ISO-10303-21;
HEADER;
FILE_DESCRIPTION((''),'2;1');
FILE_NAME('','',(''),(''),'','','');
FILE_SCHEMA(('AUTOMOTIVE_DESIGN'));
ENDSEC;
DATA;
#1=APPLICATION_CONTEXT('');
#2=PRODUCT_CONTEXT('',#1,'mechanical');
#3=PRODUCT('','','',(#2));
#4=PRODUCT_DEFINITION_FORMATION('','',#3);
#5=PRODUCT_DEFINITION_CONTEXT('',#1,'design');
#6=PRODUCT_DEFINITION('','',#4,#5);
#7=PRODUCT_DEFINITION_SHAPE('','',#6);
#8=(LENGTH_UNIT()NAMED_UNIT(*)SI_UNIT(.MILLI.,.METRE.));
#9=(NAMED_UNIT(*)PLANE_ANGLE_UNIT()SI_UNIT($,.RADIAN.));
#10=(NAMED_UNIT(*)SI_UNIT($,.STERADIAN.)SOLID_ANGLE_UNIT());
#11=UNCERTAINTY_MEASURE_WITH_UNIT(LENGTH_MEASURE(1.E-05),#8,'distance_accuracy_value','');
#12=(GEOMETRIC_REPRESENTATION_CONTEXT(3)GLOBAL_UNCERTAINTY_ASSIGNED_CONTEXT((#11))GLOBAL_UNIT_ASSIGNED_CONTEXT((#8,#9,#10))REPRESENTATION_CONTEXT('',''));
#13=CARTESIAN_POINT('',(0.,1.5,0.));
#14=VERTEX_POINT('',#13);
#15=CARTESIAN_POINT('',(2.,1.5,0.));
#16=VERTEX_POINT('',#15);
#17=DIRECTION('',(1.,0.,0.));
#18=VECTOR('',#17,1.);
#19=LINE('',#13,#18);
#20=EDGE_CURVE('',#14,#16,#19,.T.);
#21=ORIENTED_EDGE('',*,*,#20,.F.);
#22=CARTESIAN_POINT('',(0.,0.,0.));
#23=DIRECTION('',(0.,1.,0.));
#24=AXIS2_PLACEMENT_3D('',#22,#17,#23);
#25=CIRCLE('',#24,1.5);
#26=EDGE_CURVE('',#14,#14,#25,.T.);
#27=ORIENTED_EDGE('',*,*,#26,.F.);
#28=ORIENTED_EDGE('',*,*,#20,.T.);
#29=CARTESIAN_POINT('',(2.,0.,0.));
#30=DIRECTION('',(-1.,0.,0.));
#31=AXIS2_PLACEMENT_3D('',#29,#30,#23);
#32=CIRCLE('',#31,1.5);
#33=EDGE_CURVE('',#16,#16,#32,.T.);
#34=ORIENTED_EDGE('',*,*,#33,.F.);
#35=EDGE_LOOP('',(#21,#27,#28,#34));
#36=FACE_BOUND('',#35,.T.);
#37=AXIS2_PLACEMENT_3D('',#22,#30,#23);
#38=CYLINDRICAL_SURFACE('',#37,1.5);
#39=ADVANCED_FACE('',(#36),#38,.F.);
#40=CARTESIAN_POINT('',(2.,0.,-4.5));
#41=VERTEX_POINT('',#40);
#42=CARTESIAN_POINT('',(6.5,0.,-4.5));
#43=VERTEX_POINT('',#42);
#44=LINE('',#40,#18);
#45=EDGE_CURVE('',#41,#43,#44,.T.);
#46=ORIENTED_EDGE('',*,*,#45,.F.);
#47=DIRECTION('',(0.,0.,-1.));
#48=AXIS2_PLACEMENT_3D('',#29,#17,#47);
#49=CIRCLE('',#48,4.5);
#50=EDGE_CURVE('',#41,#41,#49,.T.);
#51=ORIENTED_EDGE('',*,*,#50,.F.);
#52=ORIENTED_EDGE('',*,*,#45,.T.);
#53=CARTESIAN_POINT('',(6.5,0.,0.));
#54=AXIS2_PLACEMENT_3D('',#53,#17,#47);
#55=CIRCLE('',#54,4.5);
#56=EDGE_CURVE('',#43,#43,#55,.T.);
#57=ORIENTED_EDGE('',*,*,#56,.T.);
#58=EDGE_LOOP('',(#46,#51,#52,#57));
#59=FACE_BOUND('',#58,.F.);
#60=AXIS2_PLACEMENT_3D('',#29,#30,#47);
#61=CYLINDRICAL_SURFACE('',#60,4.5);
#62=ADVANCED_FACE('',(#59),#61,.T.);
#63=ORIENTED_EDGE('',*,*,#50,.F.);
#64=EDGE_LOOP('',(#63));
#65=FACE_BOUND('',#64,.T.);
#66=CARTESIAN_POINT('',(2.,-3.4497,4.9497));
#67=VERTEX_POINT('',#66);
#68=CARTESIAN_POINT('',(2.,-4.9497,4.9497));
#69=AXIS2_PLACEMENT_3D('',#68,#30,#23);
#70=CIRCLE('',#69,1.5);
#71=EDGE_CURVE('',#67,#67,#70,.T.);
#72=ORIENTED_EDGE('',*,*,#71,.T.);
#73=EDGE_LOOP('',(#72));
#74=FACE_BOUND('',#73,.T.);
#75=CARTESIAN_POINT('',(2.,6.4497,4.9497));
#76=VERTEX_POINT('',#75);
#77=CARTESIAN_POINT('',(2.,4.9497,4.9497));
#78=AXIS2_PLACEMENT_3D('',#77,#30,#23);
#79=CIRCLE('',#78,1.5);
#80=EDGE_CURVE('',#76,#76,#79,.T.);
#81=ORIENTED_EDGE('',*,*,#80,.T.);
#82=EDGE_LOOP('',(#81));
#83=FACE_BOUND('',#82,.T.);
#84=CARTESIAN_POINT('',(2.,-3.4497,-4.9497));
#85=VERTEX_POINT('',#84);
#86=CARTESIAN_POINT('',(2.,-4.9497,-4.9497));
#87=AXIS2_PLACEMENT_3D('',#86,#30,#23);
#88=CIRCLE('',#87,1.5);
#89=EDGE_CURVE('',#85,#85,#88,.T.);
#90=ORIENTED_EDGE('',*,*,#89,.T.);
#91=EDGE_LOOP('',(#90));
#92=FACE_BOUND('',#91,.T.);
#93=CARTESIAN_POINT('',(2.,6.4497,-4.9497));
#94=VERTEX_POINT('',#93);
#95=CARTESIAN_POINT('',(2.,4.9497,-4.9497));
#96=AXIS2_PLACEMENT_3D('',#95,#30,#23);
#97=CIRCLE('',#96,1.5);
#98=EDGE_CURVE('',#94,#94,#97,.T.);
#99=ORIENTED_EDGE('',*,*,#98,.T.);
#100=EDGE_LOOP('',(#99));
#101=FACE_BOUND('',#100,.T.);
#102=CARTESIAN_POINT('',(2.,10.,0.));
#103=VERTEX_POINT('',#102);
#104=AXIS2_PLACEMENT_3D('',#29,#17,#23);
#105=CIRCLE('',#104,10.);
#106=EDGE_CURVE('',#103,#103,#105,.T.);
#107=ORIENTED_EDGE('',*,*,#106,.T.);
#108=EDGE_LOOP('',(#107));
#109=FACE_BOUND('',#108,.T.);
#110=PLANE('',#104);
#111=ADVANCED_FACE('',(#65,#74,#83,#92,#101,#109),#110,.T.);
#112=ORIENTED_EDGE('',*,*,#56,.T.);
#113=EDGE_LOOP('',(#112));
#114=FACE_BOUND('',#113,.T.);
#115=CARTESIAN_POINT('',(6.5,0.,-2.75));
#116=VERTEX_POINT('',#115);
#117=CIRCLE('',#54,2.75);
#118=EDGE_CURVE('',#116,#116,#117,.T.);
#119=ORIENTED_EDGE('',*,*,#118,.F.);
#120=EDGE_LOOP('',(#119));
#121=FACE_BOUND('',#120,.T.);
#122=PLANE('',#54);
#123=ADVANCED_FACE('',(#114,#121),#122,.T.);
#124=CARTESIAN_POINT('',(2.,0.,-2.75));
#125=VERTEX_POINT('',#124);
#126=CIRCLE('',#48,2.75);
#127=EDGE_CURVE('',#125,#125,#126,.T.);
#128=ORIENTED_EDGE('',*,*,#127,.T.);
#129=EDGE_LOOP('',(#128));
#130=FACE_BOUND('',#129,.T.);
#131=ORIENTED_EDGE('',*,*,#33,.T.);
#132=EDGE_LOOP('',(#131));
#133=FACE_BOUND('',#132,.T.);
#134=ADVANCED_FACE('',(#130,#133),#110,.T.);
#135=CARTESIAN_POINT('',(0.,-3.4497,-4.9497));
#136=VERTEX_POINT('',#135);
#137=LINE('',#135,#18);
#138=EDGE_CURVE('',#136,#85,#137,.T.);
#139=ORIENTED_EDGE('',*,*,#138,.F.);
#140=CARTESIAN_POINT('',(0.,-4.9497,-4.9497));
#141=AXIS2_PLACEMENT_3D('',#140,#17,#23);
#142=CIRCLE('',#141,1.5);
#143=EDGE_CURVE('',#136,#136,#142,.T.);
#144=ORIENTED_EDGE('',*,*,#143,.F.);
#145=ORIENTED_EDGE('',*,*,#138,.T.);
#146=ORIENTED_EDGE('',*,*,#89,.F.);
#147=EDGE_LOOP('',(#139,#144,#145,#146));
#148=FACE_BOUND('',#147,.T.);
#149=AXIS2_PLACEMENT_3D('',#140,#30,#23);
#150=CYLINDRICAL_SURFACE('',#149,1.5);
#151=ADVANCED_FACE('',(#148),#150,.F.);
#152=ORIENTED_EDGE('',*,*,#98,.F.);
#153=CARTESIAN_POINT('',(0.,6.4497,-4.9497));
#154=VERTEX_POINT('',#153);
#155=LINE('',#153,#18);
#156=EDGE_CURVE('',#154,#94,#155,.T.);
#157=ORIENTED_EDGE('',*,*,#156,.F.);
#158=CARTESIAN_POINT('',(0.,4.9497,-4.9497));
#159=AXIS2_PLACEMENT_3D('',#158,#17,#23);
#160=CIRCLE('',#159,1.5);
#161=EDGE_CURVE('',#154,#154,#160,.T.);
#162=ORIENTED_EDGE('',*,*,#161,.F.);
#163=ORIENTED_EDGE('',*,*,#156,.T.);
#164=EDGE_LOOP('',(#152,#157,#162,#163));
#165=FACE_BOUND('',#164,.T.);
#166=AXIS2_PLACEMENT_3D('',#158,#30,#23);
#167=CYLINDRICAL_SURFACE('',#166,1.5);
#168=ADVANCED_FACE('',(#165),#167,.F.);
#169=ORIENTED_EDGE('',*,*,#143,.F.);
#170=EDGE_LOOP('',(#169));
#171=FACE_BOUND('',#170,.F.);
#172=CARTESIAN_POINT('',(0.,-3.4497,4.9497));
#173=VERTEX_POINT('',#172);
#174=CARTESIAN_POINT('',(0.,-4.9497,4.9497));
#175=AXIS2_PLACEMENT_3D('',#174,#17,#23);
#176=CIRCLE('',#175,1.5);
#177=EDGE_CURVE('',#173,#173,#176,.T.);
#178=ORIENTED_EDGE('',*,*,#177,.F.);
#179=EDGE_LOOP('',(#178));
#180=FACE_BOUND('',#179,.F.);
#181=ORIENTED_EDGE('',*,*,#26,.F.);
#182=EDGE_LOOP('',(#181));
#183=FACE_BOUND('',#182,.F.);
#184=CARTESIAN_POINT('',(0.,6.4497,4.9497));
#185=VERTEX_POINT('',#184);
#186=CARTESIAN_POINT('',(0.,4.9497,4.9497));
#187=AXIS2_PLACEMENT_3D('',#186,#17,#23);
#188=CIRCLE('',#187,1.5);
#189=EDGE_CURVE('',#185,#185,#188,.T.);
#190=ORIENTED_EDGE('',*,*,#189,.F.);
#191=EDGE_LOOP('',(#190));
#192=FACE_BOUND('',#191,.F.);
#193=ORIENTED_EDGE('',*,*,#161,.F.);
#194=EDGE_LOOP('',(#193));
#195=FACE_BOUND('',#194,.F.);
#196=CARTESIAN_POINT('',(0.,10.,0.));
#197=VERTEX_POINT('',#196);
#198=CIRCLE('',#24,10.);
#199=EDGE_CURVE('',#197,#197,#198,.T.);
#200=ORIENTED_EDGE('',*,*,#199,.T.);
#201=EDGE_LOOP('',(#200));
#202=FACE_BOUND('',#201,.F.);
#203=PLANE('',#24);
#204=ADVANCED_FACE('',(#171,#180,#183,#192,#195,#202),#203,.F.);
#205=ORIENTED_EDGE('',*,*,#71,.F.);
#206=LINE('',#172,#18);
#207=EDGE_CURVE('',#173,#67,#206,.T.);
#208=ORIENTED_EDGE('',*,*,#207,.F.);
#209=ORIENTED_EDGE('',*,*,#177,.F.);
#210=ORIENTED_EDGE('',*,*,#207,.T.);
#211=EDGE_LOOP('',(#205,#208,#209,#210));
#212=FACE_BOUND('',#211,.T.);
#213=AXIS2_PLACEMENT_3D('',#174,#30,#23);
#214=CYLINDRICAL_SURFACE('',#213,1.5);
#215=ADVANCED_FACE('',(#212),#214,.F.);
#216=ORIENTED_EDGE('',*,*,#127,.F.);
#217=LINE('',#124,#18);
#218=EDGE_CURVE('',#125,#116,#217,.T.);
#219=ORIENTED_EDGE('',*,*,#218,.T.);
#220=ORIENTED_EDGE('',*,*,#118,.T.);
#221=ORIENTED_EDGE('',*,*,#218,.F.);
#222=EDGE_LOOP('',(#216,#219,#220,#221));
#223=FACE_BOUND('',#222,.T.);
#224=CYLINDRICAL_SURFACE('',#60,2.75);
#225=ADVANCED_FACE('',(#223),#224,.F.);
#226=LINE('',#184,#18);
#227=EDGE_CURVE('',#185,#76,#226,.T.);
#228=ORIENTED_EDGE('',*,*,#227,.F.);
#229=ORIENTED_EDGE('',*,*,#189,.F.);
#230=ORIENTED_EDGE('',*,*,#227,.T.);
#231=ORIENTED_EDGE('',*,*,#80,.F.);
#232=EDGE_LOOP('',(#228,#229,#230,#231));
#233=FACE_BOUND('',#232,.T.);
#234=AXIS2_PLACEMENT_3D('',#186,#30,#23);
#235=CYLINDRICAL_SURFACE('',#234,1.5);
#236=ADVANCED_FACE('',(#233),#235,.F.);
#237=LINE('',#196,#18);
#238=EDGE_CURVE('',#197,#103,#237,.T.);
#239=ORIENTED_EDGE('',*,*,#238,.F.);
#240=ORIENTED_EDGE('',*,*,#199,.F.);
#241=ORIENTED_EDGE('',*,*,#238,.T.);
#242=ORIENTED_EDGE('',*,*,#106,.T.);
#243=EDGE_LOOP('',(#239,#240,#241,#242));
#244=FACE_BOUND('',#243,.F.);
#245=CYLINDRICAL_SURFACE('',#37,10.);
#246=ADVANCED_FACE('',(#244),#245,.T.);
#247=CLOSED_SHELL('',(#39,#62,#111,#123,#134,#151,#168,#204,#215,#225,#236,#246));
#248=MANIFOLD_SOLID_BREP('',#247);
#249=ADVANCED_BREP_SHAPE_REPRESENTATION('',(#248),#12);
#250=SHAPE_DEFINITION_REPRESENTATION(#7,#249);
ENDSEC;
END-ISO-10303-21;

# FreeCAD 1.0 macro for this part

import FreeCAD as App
import Part
import Sketcher
from FreeCAD import Vector
Q = App.Units.Quantity

doc = App.newDocument("Part")
body = doc.addObject("PartDesign::Body", "Body")

# Sketch on YZ plane
sketch1 = body.newObject("Sketcher::SketchObject", "Sketch")
sketch1.AttachmentSupport = (doc.getObject("YZ_Plane"), [""])
sketch1.MapMode = "FlatFace"
sketch1.addGeometry([
    Part.Circle(Vector(0, 0, 0), Vector(0, 0, 1), 10),  # 0
    Part.Circle(Vector(4.9497, 4.9497, 0), Vector(0, 0, 1), 1.5),  # 1
    Part.Circle(Vector(-4.9497, 4.9497, 0), Vector(0, 0, 1), 1.5),  # 2
    Part.Circle(Vector(-4.9497, -4.9497, 0), Vector(0, 0, 1), 1.5),  # 3
    Part.Circle(Vector(4.9497, -4.9497, 0), Vector(0, 0, 1), 1.5),  # 4
    Part.Circle(Vector(0, 0, 0), Vector(0, 0, 1), 1.5),  # 5
], False)
sketch1.addConstraint([
    Sketcher.Constraint("Coincident", 0, 3, -1, 1),
    Sketcher.Constraint("Coincident", 5, 3, -1, 1),
    Sketcher.Constraint("Equal", 1, 2),
    Sketcher.Constraint("Equal", 2, 3),
    Sketcher.Constraint("Equal", 3, 4),
    Sketcher.Constraint("Equal", 4, 5),
    Sketcher.Constraint("Symmetric", 1, 3, 3, 3, -1, 1),
    Sketcher.Constraint("Symmetric", 2, 3, 4, 3, -1, 1),
    Sketcher.Constraint("Symmetric", 1, 3, 2, 3, -2),
    Sketcher.Constraint("Diameter", 0, Q("20 mm")),
    Sketcher.Constraint("Diameter", 1, Q("3 mm")),
    Sketcher.Constraint("DistanceX", -1, 1, 1, 3, Q("4.9497 mm")),
    Sketcher.Constraint("DistanceY", -1, 1, 1, 3, Q("4.9497 mm")),
])
pad1 = body.newObject("PartDesign::Pad", "Pad")
pad1.Profile = sketch1
pad1.Length = 2

# Sketch on YZ plane
sketch2 = body.newObject("Sketcher::SketchObject", "Sketch001")
sketch2.AttachmentSupport = (doc.getObject("YZ_Plane"), [""])
sketch2.MapMode = "FlatFace"
sketch2.AttachmentOffset = App.Placement(Vector(0, 0, 2), App.Rotation())
sketch2.addGeometry([
    Part.Circle(Vector(0, 0, 0), Vector(0, 0, 1), 4.5),
    Part.Circle(Vector(0, 0, 0), Vector(0, 0, 1), 2.75),
], False)
sketch2.addConstraint([
    Sketcher.Constraint("Coincident", 0, 3, -1, 1),
    Sketcher.Constraint("Coincident", 1, 3, -1, 1),
    Sketcher.Constraint("Diameter", 0, Q("9 mm")),
    Sketcher.Constraint("Diameter", 1, Q("5.5 mm")),
])
pad2 = body.newObject("PartDesign::Pad", "Pad001")
pad2.Profile = sketch2
pad2.Length = 4.5

doc.recompute()
